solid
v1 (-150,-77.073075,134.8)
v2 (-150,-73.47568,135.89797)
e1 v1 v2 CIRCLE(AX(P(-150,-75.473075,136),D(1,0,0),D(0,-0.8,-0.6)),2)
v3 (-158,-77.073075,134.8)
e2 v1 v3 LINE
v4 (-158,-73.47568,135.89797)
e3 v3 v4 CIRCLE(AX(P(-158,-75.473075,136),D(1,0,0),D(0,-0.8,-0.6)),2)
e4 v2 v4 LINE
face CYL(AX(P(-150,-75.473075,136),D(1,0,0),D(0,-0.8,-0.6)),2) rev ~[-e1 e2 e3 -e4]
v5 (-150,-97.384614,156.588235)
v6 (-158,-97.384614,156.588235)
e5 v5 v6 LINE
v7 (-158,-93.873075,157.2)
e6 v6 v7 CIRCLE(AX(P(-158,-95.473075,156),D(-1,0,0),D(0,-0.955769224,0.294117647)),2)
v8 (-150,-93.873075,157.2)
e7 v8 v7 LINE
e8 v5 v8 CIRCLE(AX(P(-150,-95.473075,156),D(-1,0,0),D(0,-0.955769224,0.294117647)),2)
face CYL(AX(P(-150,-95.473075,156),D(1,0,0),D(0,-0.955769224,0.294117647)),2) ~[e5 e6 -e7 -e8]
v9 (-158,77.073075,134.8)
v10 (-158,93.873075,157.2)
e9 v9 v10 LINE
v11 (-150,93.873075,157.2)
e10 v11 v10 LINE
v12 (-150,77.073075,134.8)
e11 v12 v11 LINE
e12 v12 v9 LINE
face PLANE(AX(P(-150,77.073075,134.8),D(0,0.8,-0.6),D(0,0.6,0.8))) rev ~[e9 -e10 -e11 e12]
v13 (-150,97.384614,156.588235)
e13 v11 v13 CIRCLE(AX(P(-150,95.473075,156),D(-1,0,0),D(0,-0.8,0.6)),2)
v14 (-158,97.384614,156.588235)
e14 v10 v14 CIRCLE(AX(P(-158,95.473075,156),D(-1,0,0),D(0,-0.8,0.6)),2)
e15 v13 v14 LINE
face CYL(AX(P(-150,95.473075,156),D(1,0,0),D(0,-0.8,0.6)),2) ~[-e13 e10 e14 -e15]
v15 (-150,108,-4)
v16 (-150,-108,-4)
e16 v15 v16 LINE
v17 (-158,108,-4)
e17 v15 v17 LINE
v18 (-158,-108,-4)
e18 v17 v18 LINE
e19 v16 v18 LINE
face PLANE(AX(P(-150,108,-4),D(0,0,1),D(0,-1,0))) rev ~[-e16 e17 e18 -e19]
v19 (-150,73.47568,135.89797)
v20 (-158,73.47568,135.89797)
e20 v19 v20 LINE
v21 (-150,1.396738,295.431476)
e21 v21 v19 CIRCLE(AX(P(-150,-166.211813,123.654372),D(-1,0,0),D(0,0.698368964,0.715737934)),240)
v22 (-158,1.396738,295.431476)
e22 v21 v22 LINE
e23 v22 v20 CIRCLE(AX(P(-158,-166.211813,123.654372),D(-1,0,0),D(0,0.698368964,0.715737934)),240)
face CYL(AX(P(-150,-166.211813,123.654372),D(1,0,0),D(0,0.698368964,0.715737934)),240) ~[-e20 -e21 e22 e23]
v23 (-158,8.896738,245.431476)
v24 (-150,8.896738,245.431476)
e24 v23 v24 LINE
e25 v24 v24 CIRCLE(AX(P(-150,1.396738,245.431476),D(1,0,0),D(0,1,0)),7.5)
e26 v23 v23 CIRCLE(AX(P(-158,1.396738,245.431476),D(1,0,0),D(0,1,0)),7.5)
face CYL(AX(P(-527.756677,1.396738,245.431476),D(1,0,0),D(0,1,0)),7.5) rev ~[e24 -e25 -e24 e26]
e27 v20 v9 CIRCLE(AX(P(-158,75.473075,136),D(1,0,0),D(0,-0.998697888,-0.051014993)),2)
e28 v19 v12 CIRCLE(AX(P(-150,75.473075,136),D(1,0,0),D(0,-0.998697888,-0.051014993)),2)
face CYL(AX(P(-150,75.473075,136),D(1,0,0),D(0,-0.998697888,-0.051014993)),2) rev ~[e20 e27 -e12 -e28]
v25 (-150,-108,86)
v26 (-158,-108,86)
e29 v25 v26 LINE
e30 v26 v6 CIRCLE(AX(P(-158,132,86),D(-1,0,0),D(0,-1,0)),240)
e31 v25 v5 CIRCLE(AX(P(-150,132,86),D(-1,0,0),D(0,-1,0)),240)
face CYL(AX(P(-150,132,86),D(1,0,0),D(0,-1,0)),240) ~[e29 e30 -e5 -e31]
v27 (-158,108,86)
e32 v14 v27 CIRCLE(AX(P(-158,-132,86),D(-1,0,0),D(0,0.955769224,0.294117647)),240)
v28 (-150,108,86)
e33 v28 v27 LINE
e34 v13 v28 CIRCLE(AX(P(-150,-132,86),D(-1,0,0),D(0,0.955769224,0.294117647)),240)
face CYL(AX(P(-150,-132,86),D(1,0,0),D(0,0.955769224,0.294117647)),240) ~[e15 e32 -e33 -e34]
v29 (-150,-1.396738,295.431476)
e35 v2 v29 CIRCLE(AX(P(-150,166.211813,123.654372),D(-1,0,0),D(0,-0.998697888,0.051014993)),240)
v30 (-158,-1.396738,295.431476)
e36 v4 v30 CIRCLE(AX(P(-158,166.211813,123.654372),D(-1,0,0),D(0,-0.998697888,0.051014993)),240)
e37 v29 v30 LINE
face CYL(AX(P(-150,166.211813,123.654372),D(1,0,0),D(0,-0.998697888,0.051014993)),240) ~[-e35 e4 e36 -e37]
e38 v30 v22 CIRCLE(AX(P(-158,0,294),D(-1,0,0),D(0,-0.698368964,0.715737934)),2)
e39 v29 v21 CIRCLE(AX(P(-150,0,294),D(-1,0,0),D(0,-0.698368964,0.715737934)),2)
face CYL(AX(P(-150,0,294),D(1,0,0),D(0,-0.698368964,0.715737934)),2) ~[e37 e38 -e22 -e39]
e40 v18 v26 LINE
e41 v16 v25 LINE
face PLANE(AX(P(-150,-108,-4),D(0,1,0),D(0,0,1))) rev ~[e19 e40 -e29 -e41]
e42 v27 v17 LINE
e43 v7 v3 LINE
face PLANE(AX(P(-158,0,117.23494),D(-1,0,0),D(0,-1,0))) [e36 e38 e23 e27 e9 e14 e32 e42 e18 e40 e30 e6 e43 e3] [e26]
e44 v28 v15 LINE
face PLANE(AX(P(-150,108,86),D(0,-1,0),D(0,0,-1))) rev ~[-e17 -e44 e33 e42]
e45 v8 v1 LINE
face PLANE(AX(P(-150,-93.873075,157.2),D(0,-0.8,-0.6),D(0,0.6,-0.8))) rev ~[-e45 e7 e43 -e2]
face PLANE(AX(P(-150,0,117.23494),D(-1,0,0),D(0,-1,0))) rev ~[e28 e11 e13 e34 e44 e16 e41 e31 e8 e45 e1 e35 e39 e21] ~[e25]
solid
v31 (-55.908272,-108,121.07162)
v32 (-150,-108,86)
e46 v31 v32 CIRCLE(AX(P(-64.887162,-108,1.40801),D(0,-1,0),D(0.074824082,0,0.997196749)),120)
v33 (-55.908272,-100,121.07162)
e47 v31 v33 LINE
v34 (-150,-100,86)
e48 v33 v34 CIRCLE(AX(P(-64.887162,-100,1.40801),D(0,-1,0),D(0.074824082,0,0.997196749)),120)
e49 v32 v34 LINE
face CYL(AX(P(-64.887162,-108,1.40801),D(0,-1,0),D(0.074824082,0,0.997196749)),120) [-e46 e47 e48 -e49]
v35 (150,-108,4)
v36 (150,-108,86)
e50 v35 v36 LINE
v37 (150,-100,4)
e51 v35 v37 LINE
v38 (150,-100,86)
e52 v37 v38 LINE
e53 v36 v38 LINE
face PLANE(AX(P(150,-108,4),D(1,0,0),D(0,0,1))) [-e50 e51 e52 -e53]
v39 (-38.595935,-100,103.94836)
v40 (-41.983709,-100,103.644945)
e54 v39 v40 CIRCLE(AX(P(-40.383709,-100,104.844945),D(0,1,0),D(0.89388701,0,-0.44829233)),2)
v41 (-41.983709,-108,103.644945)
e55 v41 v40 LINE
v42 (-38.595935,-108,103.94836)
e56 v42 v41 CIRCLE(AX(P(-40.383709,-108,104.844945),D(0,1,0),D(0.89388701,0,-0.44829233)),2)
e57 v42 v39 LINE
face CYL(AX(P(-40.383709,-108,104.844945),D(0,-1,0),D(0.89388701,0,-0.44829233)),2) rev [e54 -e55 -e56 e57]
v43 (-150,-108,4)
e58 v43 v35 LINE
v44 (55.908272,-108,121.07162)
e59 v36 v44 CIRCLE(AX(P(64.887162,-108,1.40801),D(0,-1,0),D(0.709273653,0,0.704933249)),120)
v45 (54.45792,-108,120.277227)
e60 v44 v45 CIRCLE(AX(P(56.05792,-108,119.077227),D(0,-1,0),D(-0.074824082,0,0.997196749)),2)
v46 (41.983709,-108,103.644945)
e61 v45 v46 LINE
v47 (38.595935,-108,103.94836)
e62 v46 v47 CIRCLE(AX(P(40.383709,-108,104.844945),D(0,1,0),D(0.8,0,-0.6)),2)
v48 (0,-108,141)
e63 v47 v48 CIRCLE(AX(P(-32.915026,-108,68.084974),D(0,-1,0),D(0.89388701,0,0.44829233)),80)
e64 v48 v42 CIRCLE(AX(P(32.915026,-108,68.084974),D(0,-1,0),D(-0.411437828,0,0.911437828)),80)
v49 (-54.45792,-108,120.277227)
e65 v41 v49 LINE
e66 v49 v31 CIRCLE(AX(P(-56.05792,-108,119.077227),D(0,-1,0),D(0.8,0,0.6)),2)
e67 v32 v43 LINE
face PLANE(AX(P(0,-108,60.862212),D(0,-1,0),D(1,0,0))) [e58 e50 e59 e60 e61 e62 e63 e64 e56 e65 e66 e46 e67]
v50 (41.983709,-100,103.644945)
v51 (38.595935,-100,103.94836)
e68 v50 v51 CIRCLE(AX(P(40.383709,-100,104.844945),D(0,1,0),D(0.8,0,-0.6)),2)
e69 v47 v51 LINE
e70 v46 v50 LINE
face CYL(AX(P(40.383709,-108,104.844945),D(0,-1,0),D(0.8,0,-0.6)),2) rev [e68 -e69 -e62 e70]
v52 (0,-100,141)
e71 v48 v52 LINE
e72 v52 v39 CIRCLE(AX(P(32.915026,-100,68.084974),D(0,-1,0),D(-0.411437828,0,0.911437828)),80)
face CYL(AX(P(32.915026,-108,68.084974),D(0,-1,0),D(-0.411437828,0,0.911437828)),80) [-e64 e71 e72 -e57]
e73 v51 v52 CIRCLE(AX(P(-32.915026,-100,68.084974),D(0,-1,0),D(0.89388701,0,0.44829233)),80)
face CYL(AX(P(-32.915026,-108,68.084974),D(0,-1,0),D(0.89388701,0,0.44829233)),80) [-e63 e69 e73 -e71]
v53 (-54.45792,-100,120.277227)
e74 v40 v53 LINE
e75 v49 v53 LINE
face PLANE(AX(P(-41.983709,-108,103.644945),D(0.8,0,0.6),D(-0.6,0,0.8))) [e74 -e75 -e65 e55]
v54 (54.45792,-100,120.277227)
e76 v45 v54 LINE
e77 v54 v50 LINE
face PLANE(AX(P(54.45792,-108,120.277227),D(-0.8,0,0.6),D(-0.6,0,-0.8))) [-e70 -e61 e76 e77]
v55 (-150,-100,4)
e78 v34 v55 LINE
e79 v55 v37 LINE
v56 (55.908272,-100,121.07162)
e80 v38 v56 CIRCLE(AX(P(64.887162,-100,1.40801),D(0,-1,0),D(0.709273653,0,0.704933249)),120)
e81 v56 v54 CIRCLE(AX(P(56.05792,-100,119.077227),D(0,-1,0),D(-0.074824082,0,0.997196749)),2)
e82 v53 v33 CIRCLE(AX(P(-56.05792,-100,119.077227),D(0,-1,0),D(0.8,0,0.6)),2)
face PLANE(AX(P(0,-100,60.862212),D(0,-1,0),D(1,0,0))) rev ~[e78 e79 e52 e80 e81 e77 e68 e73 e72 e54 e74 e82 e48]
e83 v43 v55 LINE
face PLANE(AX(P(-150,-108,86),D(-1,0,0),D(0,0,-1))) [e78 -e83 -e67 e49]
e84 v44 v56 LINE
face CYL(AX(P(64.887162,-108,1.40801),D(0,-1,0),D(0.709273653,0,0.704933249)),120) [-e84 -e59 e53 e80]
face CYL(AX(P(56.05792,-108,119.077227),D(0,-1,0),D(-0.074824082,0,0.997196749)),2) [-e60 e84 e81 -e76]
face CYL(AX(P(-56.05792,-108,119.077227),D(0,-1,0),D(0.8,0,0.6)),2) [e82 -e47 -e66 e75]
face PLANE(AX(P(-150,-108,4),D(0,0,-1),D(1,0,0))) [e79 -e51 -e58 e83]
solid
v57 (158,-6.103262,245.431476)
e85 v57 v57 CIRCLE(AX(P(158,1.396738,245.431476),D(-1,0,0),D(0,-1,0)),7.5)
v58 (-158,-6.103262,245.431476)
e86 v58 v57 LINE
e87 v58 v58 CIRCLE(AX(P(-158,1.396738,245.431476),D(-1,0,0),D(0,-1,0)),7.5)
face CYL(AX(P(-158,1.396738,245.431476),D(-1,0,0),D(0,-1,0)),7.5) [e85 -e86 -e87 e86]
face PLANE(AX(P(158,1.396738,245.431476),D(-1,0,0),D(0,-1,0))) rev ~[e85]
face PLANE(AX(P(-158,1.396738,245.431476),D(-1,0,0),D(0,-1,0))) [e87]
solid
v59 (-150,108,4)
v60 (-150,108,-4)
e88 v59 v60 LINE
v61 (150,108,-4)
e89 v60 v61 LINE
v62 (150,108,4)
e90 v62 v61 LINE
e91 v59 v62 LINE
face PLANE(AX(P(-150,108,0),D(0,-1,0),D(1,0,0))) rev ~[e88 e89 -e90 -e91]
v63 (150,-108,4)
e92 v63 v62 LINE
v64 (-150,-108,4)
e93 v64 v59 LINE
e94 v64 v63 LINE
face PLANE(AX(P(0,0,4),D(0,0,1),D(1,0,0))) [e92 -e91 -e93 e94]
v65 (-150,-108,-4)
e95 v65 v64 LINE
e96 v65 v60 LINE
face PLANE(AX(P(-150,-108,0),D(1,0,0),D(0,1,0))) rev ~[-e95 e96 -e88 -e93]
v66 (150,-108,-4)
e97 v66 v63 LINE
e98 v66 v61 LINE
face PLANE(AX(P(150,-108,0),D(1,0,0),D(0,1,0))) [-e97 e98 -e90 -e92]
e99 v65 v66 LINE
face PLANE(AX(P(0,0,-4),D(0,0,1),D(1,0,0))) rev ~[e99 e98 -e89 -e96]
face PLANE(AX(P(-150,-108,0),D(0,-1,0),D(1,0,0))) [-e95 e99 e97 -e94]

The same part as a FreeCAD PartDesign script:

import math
import FreeCAD as App
import Part
import Sketcher
from FreeCAD import Vector

doc = App.newDocument("Part")
body = doc.addObject("PartDesign::Body", "Body")

# Sketch on XY plane
sketch1 = doc.addObject("Sketcher::SketchObject", "Sketch")
body.addObject(sketch1)
sketch1.AttachmentSupport = (doc.XY_Plane, [""])
sketch1.MapMode = "FlatFace"
sketch1.addGeometry(Part.LineSegment(Vector(-150, 108, 0), Vector(-150, -108, 0)), False)
sketch1.addGeometry(Part.LineSegment(Vector(-150, -108, 0), Vector(150, -108, 0)), False)
sketch1.addGeometry(Part.LineSegment(Vector(150, -108, 0), Vector(150, 108, 0)), False)
sketch1.addGeometry(Part.LineSegment(Vector(150, 108, 0), Vector(-150, 108, 0)), False)
sketch1.addConstraint(Sketcher.Constraint("Coincident", 0, 2, 1, 1))
sketch1.addConstraint(Sketcher.Constraint("Coincident", 1, 2, 2, 1))
sketch1.addConstraint(Sketcher.Constraint("Coincident", 2, 2, 3, 1))
sketch1.addConstraint(Sketcher.Constraint("Coincident", 3, 2, 0, 1))
sketch1.addConstraint(Sketcher.Constraint("Vertical", 0))
sketch1.addConstraint(Sketcher.Constraint("Horizontal", 1))
sketch1.addConstraint(Sketcher.Constraint("Vertical", 2))
sketch1.addConstraint(Sketcher.Constraint("Horizontal", 3))
sketch1.addConstraint(Sketcher.Constraint("Symmetric", 0, 2, 2, 2, -1, 1))
sketch1.addConstraint(Sketcher.Constraint("DistanceX", 1, 1, 1, 2, 300.0))
sketch1.addConstraint(Sketcher.Constraint("DistanceY", 0, 2, 0, 1, 216.0))
pad1 = doc.addObject("PartDesign::Pad", "Pad")
body.addObject(pad1)
pad1.Profile = sketch1
pad1.Length = 8
pad1.Midplane = True
body2 = doc.addObject("PartDesign::Body", "Body001")

# Sketch on YZ plane
sketch2 = doc.addObject("Sketcher::SketchObject", "Sketch001")
body2.addObject(sketch2)
sketch2.AttachmentSupport = (doc.getObject("YZ_Plane001"), [""])
sketch2.MapMode = "FlatFace"
sketch2.AttachmentOffset = App.Placement(Vector(0, 0, -150), App.Rotation())
sketch2.addGeometry(Part.LineSegment(Vector(108, -4, 0), Vector(-108, -4, 0)), False)
sketch2.addGeometry(Part.LineSegment(Vector(-108, -4, 0), Vector(-108, 86, 0)), False)
sketch2.addGeometry(Part.ArcOfCircle(Part.Circle(Vector(132, 86, 0), Vector(0, 0, 1), 240), math.radians(162.9), math.radians(180)), False)
sketch2.addGeometry(Part.ArcOfCircle(Part.Circle(Vector(-95.5, 156, 0), Vector(0, 0, 1), 2), math.radians(37), math.radians(163)), False)
sketch2.addGeometry(Part.LineSegment(Vector(-93.9, 157.2, 0), Vector(-77.1, 134.8, 0)), False)
sketch2.addGeometry(Part.ArcOfCircle(Part.Circle(Vector(-75.5, 136, 0), Vector(0, 0, 1), 2), math.radians(-143), math.radians(-3)), False)
sketch2.addGeometry(Part.ArcOfCircle(Part.Circle(Vector(166.2, 123.7, 0), Vector(0, 0, 1), 240), math.radians(134), math.radians(177)), False)
sketch2.addGeometry(Part.ArcOfCircle(Part.Circle(Vector(0, 294, 0), Vector(0, 0, 1), 2), math.radians(46), math.radians(134)), False)
sketch2.addGeometry(Part.ArcOfCircle(Part.Circle(Vector(-166.2, 123.7, 0), Vector(0, 0, 1), 240), math.radians(3), math.radians(46)), False)
sketch2.addGeometry(Part.ArcOfCircle(Part.Circle(Vector(75.5, 136, 0), Vector(0, 0, 1), 2), math.radians(-177), math.radians(-37)), False)
sketch2.addGeometry(Part.LineSegment(Vector(77.1, 134.8, 0), Vector(93.9, 157.2, 0)), False)
sketch2.addGeometry(Part.ArcOfCircle(Part.Circle(Vector(95.5, 156, 0), Vector(0, 0, 1), 2), math.radians(17), math.radians(143)), False)
sketch2.addGeometry(Part.ArcOfCircle(Part.Circle(Vector(-132, 86, 0), Vector(0, 0, 1), 240), math.radians(0), math.radians(17.1)), False)
sketch2.addGeometry(Part.LineSegment(Vector(108, 86, 0), Vector(108, -4, 0)), False)
sketch2.addConstraint(Sketcher.Constraint("Coincident", 0, 2, 1, 1))
sketch2.addConstraint(Sketcher.Constraint("Tangent", 1, 2, 2, 2))
sketch2.addConstraint(Sketcher.Constraint("Tangent", 2, 1, 3, 2))
sketch2.addConstraint(Sketcher.Constraint("Tangent", 3, 1, 4, 1))
sketch2.addConstraint(Sketcher.Constraint("Tangent", 4, 2, 5, 1))
sketch2.addConstraint(Sketcher.Constraint("Tangent", 5, 2, 6, 2))
sketch2.addConstraint(Sketcher.Constraint("Tangent", 6, 1, 7, 2))
sketch2.addConstraint(Sketcher.Constraint("Tangent", 7, 1, 8, 2))
sketch2.addConstraint(Sketcher.Constraint("Tangent", 8, 1, 9, 1))
sketch2.addConstraint(Sketcher.Constraint("Tangent", 9, 2, 10, 1))
sketch2.addConstraint(Sketcher.Constraint("Tangent", 10, 2, 11, 2))
sketch2.addConstraint(Sketcher.Constraint("Tangent", 11, 1, 12, 2))
sketch2.addConstraint(Sketcher.Constraint("Tangent", 12, 1, 13, 1))
sketch2.addConstraint(Sketcher.Constraint("Coincident", 13, 2, 0, 1))
sketch2.addConstraint(Sketcher.Constraint("Horizontal", 0))
sketch2.addConstraint(Sketcher.Constraint("Vertical", 1))
sketch2.addConstraint(Sketcher.Constraint("Vertical", 13))
sketch2.addConstraint(Sketcher.Constraint("Equal", 3, 5))
sketch2.addConstraint(Sketcher.Constraint("Equal", 2, 6))
sketch2.addConstraint(Sketcher.Constraint("Equal", 5, 7))
sketch2.addConstraint(Sketcher.Constraint("Equal", 6, 8))
sketch2.addConstraint(Sketcher.Constraint("Equal", 7, 9))
sketch2.addConstraint(Sketcher.Constraint("Equal", 9, 11))
sketch2.addConstraint(Sketcher.Constraint("Equal", 8, 12))
sketch2.addConstraint(Sketcher.Constraint("Symmetric", 6, 3, 8, 3, -2))
sketch2.addConstraint(Sketcher.Constraint("Symmetric", 3, 3, 11, 3, -2))
sketch2.addConstraint(Sketcher.Constraint("Horizontal", 5, 3, 9, 3))
sketch2.addConstraint(Sketcher.Constraint("Horizontal", 2, 3, 12, 3))
sketch2.addConstraint(Sketcher.Constraint("Radius", 2, 240.0))
sketch2.addConstraint(Sketcher.Constraint("Radius", 3, 2.0))
sketch2.addConstraint(Sketcher.Constraint("DistanceX", 0, 2, 0, 1, 216.0))
sketch2.addConstraint(Sketcher.Constraint("DistanceY", 1, 1, 1, 2, 90.0))
sketch2.addConstraint(Sketcher.Constraint("Distance", 4, 28.0))
sketch2.addConstraint(Sketcher.Constraint("DistanceY", -1, 1, 2, 3, 86.0))
sketch2.addConstraint(Sketcher.Constraint("DistanceY", -1, 1, 3, 3, 156.0))
sketch2.addConstraint(Sketcher.Constraint("DistanceY", -1, 1, 5, 3, 136.0))
sketch2.addConstraint(Sketcher.Constraint("DistanceY", -1, 1, 7, 3, 294.0))
pad2 = doc.addObject("PartDesign::Pad", "Pad001")
body2.addObject(pad2)
pad2.Profile = sketch2
pad2.Length = 8
pad2.Reversed = True

# Sketch on YZ plane
sketch3 = doc.addObject("Sketcher::SketchObject", "Sketch002")
body2.addObject(sketch3)
sketch3.AttachmentSupport = (doc.getObject("YZ_Plane001"), [""])
sketch3.MapMode = "FlatFace"
sketch3.AttachmentOffset = App.Placement(Vector(0, 0, -158), App.Rotation())
sketch3.addGeometry(Part.Circle(Vector(1, 245, 0), Vector(0, 0, 1), 8), False)
sketch3.addConstraint(Sketcher.Constraint("Diameter", 0, 15.0))
sketch3.addConstraint(Sketcher.Constraint("DistanceX", -1, 1, 0, 3, 1.396738))
sketch3.addConstraint(Sketcher.Constraint("DistanceY", -1, 1, 0, 3, 245.431476))
doc.recompute()
hole = doc.addObject("PartDesign::Hole", "Hole")
body2.addObject(hole)
hole.Profile = sketch3
hole.ThreadType = "None"
hole.Diameter = 15
hole.DepthType = "ThroughAll"
hole.Reversed = True
body3 = doc.addObject("PartDesign::Body", "Body002")

# Sketch on XZ plane
sketch4 = doc.addObject("Sketcher::SketchObject", "Sketch003")
body3.addObject(sketch4)
sketch4.AttachmentSupport = (doc.getObject("XZ_Plane002"), [""])
sketch4.MapMode = "FlatFace"
sketch4.AttachmentOffset = App.Placement(Vector(0, 0, 108), App.Rotation())
sketch4.addGeometry(Part.LineSegment(Vector(-150, 86, 0), Vector(-150, 4, 0)), False)
sketch4.addGeometry(Part.LineSegment(Vector(-150, 4, 0), Vector(150, 4, 0)), False)
sketch4.addGeometry(Part.LineSegment(Vector(150, 4, 0), Vector(150, 86, 0)), False)
sketch4.addGeometry(Part.ArcOfCircle(Part.Circle(Vector(64.9, 1.4, 0), Vector(0, 0, 1), 120), math.radians(45), math.radians(94)), False)
sketch4.addGeometry(Part.ArcOfCircle(Part.Circle(Vector(56.1, 119.1, 0), Vector(0, 0, 1), 2), math.radians(94), math.radians(143)), False)
sketch4.addGeometry(Part.LineSegment(Vector(54.5, 120.3, 0), Vector(42, 103.6, 0)), False)
sketch4.addGeometry(Part.ArcOfCircle(Part.Circle(Vector(40.4, 104.8, 0), Vector(0, 0, 1), 2), math.radians(-153), math.radians(-37)), False)
sketch4.addGeometry(Part.ArcOfCircle(Part.Circle(Vector(-32.9, 68.1, 0), Vector(0, 0, 1), 80), math.radians(27), math.radians(66)), False)
sketch4.addGeometry(Part.ArcOfCircle(Part.Circle(Vector(32.9, 68.1, 0), Vector(0, 0, 1), 80), math.radians(114), math.radians(153)), False)
sketch4.addGeometry(Part.ArcOfCircle(Part.Circle(Vector(-40.4, 104.8, 0), Vector(0, 0, 1), 2), math.radians(-143), math.radians(-27)), False)
sketch4.addGeometry(Part.LineSegment(Vector(-42, 103.6, 0), Vector(-54.5, 120.3, 0)), False)
sketch4.addGeometry(Part.ArcOfCircle(Part.Circle(Vector(-56.1, 119.1, 0), Vector(0, 0, 1), 2), math.radians(37), math.radians(86)), False)
sketch4.addGeometry(Part.ArcOfCircle(Part.Circle(Vector(-64.9, 1.4, 0), Vector(0, 0, 1), 120), math.radians(86), math.radians(135)), False)
sketch4.addConstraint(Sketcher.Constraint("Coincident", 0, 2, 1, 1))
sketch4.addConstraint(Sketcher.Constraint("Coincident", 1, 2, 2, 1))
sketch4.addConstraint(Sketcher.Constraint("Coincident", 2, 2, 3, 1))
sketch4.addConstraint(Sketcher.Constraint("Tangent", 3, 2, 4, 1))
sketch4.addConstraint(Sketcher.Constraint("Tangent", 4, 2, 5, 1))
sketch4.addConstraint(Sketcher.Constraint("Tangent", 5, 2, 6, 2))
sketch4.addConstraint(Sketcher.Constraint("Tangent", 6, 1, 7, 1))
sketch4.addConstraint(Sketcher.Constraint("Coincident", 7, 2, 8, 1))
sketch4.addConstraint(Sketcher.Constraint("Tangent", 8, 2, 9, 2))
sketch4.addConstraint(Sketcher.Constraint("Tangent", 9, 1, 10, 1))
sketch4.addConstraint(Sketcher.Constraint("Tangent", 10, 2, 11, 1))
sketch4.addConstraint(Sketcher.Constraint("Tangent", 11, 2, 12, 1))
sketch4.addConstraint(Sketcher.Constraint("Coincident", 12, 2, 0, 1))
sketch4.addConstraint(Sketcher.Constraint("Vertical", 0))
sketch4.addConstraint(Sketcher.Constraint("Horizontal", 1))
sketch4.addConstraint(Sketcher.Constraint("Vertical", 2))
sketch4.addConstraint(Sketcher.Constraint("Equal", 4, 6))
sketch4.addConstraint(Sketcher.Constraint("Equal", 7, 8))
sketch4.addConstraint(Sketcher.Constraint("Equal", 6, 9))
sketch4.addConstraint(Sketcher.Constraint("Equal", 9, 11))
sketch4.addConstraint(Sketcher.Constraint("Equal", 3, 12))
sketch4.addConstraint(Sketcher.Constraint("Symmetric", 7, 3, 8, 3, -2))
sketch4.addConstraint(Sketcher.Constraint("Symmetric", 4, 3, 11, 3, -2))
sketch4.addConstraint(Sketcher.Constraint("Symmetric", 2, 2, 12, 2, -2))
sketch4.addConstraint(Sketcher.Constraint("Horizontal", 6, 3, 9, 3))
sketch4.addConstraint(Sketcher.Constraint("Radius", 3, 120.0))
sketch4.addConstraint(Sketcher.Constraint("Radius", 4, 2.0))
sketch4.addConstraint(Sketcher.Constraint("Radius", 7, 80.0))
sketch4.addConstraint(Sketcher.Constraint("DistanceX", 1, 1, 1, 2, 300.0))
sketch4.addConstraint(Sketcher.Constraint("DistanceY", 0, 2, 0, 1, 82.0))
sketch4.addConstraint(Sketcher.Constraint("DistanceY", -1, 1, 0, 2, 4.0))
sketch4.addConstraint(Sketcher.Constraint("DistanceY", -1, 1, 7, 2, 141.0))
sketch4.addConstraint(Sketcher.Constraint("DistanceX", 4, 2, 4, 3, 1.6))
sketch4.addConstraint(Sketcher.Constraint("DistanceX", -1, 1, 3, 3, 64.887162))
sketch4.addConstraint(Sketcher.Constraint("DistanceX", -1, 1, 4, 3, 56.05792))
sketch4.addConstraint(Sketcher.Constraint("DistanceX", -1, 1, 6, 3, 40.383709))
pad3 = doc.addObject("PartDesign::Pad", "Pad002")
body3.addObject(pad3)
pad3.Profile = sketch4
pad3.Length = 8
pad3.Reversed = True
body4 = doc.addObject("PartDesign::Body", "Body003")

# Sketch on YZ plane
sketch5 = doc.addObject("Sketcher::SketchObject", "Sketch004")
body4.addObject(sketch5)
sketch5.AttachmentSupport = (doc.getObject("YZ_Plane003"), [""])
sketch5.MapMode = "FlatFace"
sketch5.AttachmentOffset = App.Placement(Vector(0, 0, -158), App.Rotation())
sketch5.addGeometry(Part.Circle(Vector(1, 245, 0), Vector(0, 0, 1), 8), False)
sketch5.addConstraint(Sketcher.Constraint("Diameter", 0, 15.0))
sketch5.addConstraint(Sketcher.Constraint("DistanceX", -1, 1, 0, 3, 1.396738))
sketch5.addConstraint(Sketcher.Constraint("DistanceY", -1, 1, 0, 3, 245.431476))
pad4 = doc.addObject("PartDesign::Pad", "Pad003")
body4.addObject(pad4)
pad4.Profile = sketch5
pad4.Length = 316

doc.recompute()
